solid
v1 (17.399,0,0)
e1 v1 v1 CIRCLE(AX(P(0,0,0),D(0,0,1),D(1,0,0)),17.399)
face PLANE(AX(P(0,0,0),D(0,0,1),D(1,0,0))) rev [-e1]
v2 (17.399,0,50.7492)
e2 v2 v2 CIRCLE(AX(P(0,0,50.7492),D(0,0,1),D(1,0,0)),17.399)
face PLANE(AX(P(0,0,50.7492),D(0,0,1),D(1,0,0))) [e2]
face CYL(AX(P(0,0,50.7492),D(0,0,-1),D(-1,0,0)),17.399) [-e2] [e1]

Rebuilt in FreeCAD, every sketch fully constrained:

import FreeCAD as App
import Part
import Sketcher

V = App.Vector
Q = App.Units.Quantity

doc = App.newDocument("Part")
body = doc.addObject("PartDesign::Body", "Body")

sketch1 = doc.addObject("Sketcher::SketchObject", "Sketch")
body.addObject(sketch1)
sketch1.AttachmentSupport = (doc.XY_Plane, [""])
sketch1.MapMode = "FlatFace"
sketch1.addGeometry(Part.Circle(V(0, 0, 0), V(0, 0, 1), 17.399), False)
sketch1.addConstraint([
    Sketcher.Constraint("Coincident", 0, 3, -1, 1),
    Sketcher.Constraint("Diameter", 0, Q("1.37 in")),
])
pad1 = doc.addObject("PartDesign::Pad", "Pad")
body.addObject(pad1)
pad1.Profile = sketch1
pad1.Length = Q("1.998 in")

doc.recompute()
